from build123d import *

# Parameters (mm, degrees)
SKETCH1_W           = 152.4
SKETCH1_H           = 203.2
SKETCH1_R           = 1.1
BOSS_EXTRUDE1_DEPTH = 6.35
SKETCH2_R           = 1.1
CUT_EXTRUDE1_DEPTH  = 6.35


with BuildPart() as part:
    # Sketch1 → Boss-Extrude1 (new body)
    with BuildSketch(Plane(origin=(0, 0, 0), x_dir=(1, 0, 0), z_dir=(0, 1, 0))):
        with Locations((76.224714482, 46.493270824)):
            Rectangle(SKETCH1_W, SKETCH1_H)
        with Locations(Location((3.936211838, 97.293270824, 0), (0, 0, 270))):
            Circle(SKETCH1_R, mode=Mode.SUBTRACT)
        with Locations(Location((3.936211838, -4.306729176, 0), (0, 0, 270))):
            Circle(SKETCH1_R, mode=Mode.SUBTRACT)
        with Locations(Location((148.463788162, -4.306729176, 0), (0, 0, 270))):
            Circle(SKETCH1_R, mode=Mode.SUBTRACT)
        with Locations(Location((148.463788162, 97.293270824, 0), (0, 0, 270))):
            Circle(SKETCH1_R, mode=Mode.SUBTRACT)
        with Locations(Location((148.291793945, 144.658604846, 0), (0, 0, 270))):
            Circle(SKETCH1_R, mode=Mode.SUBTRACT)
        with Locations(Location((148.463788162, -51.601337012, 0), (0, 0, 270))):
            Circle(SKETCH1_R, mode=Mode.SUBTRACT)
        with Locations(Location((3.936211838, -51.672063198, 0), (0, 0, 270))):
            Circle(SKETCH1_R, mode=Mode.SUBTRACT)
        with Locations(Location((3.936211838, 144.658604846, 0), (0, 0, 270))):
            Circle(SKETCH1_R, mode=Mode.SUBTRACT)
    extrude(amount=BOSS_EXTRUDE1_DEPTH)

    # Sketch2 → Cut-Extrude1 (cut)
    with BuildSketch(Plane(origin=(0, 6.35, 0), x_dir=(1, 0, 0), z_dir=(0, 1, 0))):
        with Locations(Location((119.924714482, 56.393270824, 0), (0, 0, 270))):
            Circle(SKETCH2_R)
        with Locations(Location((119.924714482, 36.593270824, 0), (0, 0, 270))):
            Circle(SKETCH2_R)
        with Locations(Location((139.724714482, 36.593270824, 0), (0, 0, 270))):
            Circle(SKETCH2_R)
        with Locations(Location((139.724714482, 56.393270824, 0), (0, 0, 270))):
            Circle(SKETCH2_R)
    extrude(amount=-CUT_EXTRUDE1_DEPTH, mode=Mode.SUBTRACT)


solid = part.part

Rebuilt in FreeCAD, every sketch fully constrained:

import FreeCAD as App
import Part
import Sketcher
Q = App.Units.Quantity

doc = App.newDocument("Part")
body = doc.addObject("PartDesign::Body", "Body")

# Sketch on XZ plane
sketch1 = body.newObject("Sketcher::SketchObject", "Sketch")
sketch1.AttachmentSupport = (doc.getObject("XZ_Plane"), [""])
sketch1.MapMode = "FlatFace"
sketch1.addGeometry(Part.LineSegment(App.Vector(0, -148.1, 0), App.Vector(0, 55.1, 0)), False)
sketch1.addGeometry(Part.LineSegment(App.Vector(0, 55.1, 0), App.Vector(152.4, 55.1, 0)), False)
sketch1.addGeometry(Part.LineSegment(App.Vector(152.4, 55.1, 0), App.Vector(152.4, -148.1, 0)), False)
sketch1.addGeometry(Part.LineSegment(App.Vector(152.4, -148.1, 0), App.Vector(0, -148.1, 0)), False)
sketch1.addGeometry(Part.Circle(App.Vector(3.9, 51.7, 0), App.Vector(0, 0, 1), 1.1), False)
sketch1.addGeometry(Part.Circle(App.Vector(3.9, 4.3, 0), App.Vector(0, 0, 1), 1.1), False)
sketch1.addGeometry(Part.Circle(App.Vector(148.5, 51.6, 0), App.Vector(0, 0, 1), 1.1), False)
sketch1.addGeometry(Part.Circle(App.Vector(148.5, 4.3, 0), App.Vector(0, 0, 1), 1.1), False)
sketch1.addGeometry(Part.Circle(App.Vector(3.9, -97.3, 0), App.Vector(0, 0, 1), 1.1), False)
sketch1.addGeometry(Part.Circle(App.Vector(3.9, -144.7, 0), App.Vector(0, 0, 1), 1.1), False)
sketch1.addGeometry(Part.Circle(App.Vector(148.5, -97.3, 0), App.Vector(0, 0, 1), 1.1), False)
sketch1.addGeometry(Part.Circle(App.Vector(148.3, -144.7, 0), App.Vector(0, 0, 1), 1.1), False)
sketch1.addConstraint(Sketcher.Constraint("Coincident", 0, 2, 1, 1))
sketch1.addConstraint(Sketcher.Constraint("Coincident", 1, 2, 2, 1))
sketch1.addConstraint(Sketcher.Constraint("Coincident", 2, 2, 3, 1))
sketch1.addConstraint(Sketcher.Constraint("Coincident", 3, 2, 0, 1))
sketch1.addConstraint(Sketcher.Constraint("Vertical", 0))
sketch1.addConstraint(Sketcher.Constraint("Horizontal", 1))
sketch1.addConstraint(Sketcher.Constraint("Vertical", 2))
sketch1.addConstraint(Sketcher.Constraint("Horizontal", 3))
sketch1.addConstraint(Sketcher.Constraint("Equal", 4, 5))
sketch1.addConstraint(Sketcher.Constraint("Equal", 5, 6))
sketch1.addConstraint(Sketcher.Constraint("Equal", 6, 7))
sketch1.addConstraint(Sketcher.Constraint("Equal", 7, 8))
sketch1.addConstraint(Sketcher.Constraint("Equal", 8, 9))
sketch1.addConstraint(Sketcher.Constraint("Equal", 9, 10))
sketch1.addConstraint(Sketcher.Constraint("Equal", 10, 11))
sketch1.addConstraint(Sketcher.Constraint("Horizontal", 5, 3, 7, 3))
sketch1.addConstraint(Sketcher.Constraint("Horizontal", 8, 3, 10, 3))
sketch1.addConstraint(Sketcher.Constraint("Horizontal", 9, 3, 11, 3))
sketch1.addConstraint(Sketcher.Constraint("Vertical", 4, 3, 5, 3))
sketch1.addConstraint(Sketcher.Constraint("Vertical", 6, 3, 7, 3))
sketch1.addConstraint(Sketcher.Constraint("Vertical", 5, 3, 8, 3))
sketch1.addConstraint(Sketcher.Constraint("Vertical", 8, 3, 9, 3))
sketch1.addConstraint(Sketcher.Constraint("Vertical", 7, 3, 10, 3))
sketch1.addConstraint(Sketcher.Constraint("DistanceX", 1, 1, 1, 2, Q("6 in")))
sketch1.addConstraint(Sketcher.Constraint("DistanceY", 0, 1, 0, 2, Q("8 in")))
sketch1.addConstraint(Sketcher.Constraint("DistanceY", 8, 3, 5, 3, Q("4 in")))
sketch1.addConstraint(Sketcher.Constraint("DistanceY", 5, 3, 0, 2, Q("2 in")))
sketch1.addConstraint(Sketcher.Constraint("Diameter", 4, Q("2.2 mm")))
sketch1.addConstraint(Sketcher.Constraint("DistanceX", -1, 1, 4, 3, Q("3.936212 mm")))
sketch1.addConstraint(Sketcher.Constraint("DistanceY", -1, 1, 5, 3, Q("4.306729 mm")))
sketch1.addConstraint(Sketcher.Constraint("DistanceX", -1, 1, 6, 3, Q("148.463788 mm")))
sketch1.addConstraint(Sketcher.Constraint("DistanceY", 9, 3, 4, 3, Q("196.330668 mm")))
sketch1.addConstraint(Sketcher.Constraint("DistanceY", 9, 3, 6, 3, Q("196.259942 mm")))
sketch1.addConstraint(Sketcher.Constraint("DistanceX", 11, 3, 2, 2, Q("4.132921 mm")))
sketch1.addConstraint(Sketcher.Constraint("DistanceY", -1, 1, 4, 3, Q("51.672063 mm")))
sketch1.addConstraint(Sketcher.Constraint("DistanceX", -1, 1, 11, 3, Q("148.291794 mm")))
pad1 = body.newObject("PartDesign::Pad", "Pad")
pad1.Profile = sketch1
pad1.Length = Q("0.25 in")
pad1.Reversed = True

# Sketch on XZ plane
sketch2 = body.newObject("Sketcher::SketchObject", "Sketch001")
sketch2.AttachmentSupport = (doc.getObject("XZ_Plane"), [""])
sketch2.MapMode = "FlatFace"
sketch2.AttachmentOffset = App.Placement(App.Vector(0, 0, -0.25 * 25.4), App.Rotation())
sketch2.addGeometry(Part.Circle(App.Vector(119.9, -56.4, 0), App.Vector(0, 0, 1), 1.1), False)
sketch2.addGeometry(Part.Circle(App.Vector(119.9, -36.6, 0), App.Vector(0, 0, 1), 1.1), False)
sketch2.addGeometry(Part.Circle(App.Vector(139.7, -36.6, 0), App.Vector(0, 0, 1), 1.1), False)
sketch2.addGeometry(Part.Circle(App.Vector(139.7, -56.4, 0), App.Vector(0, 0, 1), 1.1), False)
sketch2.addConstraint(Sketcher.Constraint("Equal", 0, 1))
sketch2.addConstraint(Sketcher.Constraint("Equal", 1, 2))
sketch2.addConstraint(Sketcher.Constraint("Equal", 2, 3))
sketch2.addConstraint(Sketcher.Constraint("Horizontal", 1, 3, 2, 3))
sketch2.addConstraint(Sketcher.Constraint("Horizontal", 0, 3, 3, 3))
sketch2.addConstraint(Sketcher.Constraint("Vertical", 0, 3, 1, 3))
sketch2.addConstraint(Sketcher.Constraint("Vertical", 2, 3, 3, 3))
sketch2.addConstraint(Sketcher.Constraint("Diameter", 0, Q("2.2 mm")))
sketch2.addConstraint(Sketcher.Constraint("DistanceY", 0, 3, 1, 3, Q("19.8 mm")))
sketch2.addConstraint(Sketcher.Constraint("DistanceX", 1, 3, 2, 3, Q("19.8 mm")))
sketch2.addConstraint(Sketcher.Constraint("DistanceY", 0, 3, -1, 1, Q("56.393271 mm")))
sketch2.addConstraint(Sketcher.Constraint("DistanceX", -1, 1, 0, 3, Q("119.924714 mm")))
pocket1 = body.newObject("PartDesign::Pocket", "Pocket")
pocket1.Profile = sketch2
pocket1.Length = Q("0.25 in")
pocket1.Reversed = True

doc.recompute()
